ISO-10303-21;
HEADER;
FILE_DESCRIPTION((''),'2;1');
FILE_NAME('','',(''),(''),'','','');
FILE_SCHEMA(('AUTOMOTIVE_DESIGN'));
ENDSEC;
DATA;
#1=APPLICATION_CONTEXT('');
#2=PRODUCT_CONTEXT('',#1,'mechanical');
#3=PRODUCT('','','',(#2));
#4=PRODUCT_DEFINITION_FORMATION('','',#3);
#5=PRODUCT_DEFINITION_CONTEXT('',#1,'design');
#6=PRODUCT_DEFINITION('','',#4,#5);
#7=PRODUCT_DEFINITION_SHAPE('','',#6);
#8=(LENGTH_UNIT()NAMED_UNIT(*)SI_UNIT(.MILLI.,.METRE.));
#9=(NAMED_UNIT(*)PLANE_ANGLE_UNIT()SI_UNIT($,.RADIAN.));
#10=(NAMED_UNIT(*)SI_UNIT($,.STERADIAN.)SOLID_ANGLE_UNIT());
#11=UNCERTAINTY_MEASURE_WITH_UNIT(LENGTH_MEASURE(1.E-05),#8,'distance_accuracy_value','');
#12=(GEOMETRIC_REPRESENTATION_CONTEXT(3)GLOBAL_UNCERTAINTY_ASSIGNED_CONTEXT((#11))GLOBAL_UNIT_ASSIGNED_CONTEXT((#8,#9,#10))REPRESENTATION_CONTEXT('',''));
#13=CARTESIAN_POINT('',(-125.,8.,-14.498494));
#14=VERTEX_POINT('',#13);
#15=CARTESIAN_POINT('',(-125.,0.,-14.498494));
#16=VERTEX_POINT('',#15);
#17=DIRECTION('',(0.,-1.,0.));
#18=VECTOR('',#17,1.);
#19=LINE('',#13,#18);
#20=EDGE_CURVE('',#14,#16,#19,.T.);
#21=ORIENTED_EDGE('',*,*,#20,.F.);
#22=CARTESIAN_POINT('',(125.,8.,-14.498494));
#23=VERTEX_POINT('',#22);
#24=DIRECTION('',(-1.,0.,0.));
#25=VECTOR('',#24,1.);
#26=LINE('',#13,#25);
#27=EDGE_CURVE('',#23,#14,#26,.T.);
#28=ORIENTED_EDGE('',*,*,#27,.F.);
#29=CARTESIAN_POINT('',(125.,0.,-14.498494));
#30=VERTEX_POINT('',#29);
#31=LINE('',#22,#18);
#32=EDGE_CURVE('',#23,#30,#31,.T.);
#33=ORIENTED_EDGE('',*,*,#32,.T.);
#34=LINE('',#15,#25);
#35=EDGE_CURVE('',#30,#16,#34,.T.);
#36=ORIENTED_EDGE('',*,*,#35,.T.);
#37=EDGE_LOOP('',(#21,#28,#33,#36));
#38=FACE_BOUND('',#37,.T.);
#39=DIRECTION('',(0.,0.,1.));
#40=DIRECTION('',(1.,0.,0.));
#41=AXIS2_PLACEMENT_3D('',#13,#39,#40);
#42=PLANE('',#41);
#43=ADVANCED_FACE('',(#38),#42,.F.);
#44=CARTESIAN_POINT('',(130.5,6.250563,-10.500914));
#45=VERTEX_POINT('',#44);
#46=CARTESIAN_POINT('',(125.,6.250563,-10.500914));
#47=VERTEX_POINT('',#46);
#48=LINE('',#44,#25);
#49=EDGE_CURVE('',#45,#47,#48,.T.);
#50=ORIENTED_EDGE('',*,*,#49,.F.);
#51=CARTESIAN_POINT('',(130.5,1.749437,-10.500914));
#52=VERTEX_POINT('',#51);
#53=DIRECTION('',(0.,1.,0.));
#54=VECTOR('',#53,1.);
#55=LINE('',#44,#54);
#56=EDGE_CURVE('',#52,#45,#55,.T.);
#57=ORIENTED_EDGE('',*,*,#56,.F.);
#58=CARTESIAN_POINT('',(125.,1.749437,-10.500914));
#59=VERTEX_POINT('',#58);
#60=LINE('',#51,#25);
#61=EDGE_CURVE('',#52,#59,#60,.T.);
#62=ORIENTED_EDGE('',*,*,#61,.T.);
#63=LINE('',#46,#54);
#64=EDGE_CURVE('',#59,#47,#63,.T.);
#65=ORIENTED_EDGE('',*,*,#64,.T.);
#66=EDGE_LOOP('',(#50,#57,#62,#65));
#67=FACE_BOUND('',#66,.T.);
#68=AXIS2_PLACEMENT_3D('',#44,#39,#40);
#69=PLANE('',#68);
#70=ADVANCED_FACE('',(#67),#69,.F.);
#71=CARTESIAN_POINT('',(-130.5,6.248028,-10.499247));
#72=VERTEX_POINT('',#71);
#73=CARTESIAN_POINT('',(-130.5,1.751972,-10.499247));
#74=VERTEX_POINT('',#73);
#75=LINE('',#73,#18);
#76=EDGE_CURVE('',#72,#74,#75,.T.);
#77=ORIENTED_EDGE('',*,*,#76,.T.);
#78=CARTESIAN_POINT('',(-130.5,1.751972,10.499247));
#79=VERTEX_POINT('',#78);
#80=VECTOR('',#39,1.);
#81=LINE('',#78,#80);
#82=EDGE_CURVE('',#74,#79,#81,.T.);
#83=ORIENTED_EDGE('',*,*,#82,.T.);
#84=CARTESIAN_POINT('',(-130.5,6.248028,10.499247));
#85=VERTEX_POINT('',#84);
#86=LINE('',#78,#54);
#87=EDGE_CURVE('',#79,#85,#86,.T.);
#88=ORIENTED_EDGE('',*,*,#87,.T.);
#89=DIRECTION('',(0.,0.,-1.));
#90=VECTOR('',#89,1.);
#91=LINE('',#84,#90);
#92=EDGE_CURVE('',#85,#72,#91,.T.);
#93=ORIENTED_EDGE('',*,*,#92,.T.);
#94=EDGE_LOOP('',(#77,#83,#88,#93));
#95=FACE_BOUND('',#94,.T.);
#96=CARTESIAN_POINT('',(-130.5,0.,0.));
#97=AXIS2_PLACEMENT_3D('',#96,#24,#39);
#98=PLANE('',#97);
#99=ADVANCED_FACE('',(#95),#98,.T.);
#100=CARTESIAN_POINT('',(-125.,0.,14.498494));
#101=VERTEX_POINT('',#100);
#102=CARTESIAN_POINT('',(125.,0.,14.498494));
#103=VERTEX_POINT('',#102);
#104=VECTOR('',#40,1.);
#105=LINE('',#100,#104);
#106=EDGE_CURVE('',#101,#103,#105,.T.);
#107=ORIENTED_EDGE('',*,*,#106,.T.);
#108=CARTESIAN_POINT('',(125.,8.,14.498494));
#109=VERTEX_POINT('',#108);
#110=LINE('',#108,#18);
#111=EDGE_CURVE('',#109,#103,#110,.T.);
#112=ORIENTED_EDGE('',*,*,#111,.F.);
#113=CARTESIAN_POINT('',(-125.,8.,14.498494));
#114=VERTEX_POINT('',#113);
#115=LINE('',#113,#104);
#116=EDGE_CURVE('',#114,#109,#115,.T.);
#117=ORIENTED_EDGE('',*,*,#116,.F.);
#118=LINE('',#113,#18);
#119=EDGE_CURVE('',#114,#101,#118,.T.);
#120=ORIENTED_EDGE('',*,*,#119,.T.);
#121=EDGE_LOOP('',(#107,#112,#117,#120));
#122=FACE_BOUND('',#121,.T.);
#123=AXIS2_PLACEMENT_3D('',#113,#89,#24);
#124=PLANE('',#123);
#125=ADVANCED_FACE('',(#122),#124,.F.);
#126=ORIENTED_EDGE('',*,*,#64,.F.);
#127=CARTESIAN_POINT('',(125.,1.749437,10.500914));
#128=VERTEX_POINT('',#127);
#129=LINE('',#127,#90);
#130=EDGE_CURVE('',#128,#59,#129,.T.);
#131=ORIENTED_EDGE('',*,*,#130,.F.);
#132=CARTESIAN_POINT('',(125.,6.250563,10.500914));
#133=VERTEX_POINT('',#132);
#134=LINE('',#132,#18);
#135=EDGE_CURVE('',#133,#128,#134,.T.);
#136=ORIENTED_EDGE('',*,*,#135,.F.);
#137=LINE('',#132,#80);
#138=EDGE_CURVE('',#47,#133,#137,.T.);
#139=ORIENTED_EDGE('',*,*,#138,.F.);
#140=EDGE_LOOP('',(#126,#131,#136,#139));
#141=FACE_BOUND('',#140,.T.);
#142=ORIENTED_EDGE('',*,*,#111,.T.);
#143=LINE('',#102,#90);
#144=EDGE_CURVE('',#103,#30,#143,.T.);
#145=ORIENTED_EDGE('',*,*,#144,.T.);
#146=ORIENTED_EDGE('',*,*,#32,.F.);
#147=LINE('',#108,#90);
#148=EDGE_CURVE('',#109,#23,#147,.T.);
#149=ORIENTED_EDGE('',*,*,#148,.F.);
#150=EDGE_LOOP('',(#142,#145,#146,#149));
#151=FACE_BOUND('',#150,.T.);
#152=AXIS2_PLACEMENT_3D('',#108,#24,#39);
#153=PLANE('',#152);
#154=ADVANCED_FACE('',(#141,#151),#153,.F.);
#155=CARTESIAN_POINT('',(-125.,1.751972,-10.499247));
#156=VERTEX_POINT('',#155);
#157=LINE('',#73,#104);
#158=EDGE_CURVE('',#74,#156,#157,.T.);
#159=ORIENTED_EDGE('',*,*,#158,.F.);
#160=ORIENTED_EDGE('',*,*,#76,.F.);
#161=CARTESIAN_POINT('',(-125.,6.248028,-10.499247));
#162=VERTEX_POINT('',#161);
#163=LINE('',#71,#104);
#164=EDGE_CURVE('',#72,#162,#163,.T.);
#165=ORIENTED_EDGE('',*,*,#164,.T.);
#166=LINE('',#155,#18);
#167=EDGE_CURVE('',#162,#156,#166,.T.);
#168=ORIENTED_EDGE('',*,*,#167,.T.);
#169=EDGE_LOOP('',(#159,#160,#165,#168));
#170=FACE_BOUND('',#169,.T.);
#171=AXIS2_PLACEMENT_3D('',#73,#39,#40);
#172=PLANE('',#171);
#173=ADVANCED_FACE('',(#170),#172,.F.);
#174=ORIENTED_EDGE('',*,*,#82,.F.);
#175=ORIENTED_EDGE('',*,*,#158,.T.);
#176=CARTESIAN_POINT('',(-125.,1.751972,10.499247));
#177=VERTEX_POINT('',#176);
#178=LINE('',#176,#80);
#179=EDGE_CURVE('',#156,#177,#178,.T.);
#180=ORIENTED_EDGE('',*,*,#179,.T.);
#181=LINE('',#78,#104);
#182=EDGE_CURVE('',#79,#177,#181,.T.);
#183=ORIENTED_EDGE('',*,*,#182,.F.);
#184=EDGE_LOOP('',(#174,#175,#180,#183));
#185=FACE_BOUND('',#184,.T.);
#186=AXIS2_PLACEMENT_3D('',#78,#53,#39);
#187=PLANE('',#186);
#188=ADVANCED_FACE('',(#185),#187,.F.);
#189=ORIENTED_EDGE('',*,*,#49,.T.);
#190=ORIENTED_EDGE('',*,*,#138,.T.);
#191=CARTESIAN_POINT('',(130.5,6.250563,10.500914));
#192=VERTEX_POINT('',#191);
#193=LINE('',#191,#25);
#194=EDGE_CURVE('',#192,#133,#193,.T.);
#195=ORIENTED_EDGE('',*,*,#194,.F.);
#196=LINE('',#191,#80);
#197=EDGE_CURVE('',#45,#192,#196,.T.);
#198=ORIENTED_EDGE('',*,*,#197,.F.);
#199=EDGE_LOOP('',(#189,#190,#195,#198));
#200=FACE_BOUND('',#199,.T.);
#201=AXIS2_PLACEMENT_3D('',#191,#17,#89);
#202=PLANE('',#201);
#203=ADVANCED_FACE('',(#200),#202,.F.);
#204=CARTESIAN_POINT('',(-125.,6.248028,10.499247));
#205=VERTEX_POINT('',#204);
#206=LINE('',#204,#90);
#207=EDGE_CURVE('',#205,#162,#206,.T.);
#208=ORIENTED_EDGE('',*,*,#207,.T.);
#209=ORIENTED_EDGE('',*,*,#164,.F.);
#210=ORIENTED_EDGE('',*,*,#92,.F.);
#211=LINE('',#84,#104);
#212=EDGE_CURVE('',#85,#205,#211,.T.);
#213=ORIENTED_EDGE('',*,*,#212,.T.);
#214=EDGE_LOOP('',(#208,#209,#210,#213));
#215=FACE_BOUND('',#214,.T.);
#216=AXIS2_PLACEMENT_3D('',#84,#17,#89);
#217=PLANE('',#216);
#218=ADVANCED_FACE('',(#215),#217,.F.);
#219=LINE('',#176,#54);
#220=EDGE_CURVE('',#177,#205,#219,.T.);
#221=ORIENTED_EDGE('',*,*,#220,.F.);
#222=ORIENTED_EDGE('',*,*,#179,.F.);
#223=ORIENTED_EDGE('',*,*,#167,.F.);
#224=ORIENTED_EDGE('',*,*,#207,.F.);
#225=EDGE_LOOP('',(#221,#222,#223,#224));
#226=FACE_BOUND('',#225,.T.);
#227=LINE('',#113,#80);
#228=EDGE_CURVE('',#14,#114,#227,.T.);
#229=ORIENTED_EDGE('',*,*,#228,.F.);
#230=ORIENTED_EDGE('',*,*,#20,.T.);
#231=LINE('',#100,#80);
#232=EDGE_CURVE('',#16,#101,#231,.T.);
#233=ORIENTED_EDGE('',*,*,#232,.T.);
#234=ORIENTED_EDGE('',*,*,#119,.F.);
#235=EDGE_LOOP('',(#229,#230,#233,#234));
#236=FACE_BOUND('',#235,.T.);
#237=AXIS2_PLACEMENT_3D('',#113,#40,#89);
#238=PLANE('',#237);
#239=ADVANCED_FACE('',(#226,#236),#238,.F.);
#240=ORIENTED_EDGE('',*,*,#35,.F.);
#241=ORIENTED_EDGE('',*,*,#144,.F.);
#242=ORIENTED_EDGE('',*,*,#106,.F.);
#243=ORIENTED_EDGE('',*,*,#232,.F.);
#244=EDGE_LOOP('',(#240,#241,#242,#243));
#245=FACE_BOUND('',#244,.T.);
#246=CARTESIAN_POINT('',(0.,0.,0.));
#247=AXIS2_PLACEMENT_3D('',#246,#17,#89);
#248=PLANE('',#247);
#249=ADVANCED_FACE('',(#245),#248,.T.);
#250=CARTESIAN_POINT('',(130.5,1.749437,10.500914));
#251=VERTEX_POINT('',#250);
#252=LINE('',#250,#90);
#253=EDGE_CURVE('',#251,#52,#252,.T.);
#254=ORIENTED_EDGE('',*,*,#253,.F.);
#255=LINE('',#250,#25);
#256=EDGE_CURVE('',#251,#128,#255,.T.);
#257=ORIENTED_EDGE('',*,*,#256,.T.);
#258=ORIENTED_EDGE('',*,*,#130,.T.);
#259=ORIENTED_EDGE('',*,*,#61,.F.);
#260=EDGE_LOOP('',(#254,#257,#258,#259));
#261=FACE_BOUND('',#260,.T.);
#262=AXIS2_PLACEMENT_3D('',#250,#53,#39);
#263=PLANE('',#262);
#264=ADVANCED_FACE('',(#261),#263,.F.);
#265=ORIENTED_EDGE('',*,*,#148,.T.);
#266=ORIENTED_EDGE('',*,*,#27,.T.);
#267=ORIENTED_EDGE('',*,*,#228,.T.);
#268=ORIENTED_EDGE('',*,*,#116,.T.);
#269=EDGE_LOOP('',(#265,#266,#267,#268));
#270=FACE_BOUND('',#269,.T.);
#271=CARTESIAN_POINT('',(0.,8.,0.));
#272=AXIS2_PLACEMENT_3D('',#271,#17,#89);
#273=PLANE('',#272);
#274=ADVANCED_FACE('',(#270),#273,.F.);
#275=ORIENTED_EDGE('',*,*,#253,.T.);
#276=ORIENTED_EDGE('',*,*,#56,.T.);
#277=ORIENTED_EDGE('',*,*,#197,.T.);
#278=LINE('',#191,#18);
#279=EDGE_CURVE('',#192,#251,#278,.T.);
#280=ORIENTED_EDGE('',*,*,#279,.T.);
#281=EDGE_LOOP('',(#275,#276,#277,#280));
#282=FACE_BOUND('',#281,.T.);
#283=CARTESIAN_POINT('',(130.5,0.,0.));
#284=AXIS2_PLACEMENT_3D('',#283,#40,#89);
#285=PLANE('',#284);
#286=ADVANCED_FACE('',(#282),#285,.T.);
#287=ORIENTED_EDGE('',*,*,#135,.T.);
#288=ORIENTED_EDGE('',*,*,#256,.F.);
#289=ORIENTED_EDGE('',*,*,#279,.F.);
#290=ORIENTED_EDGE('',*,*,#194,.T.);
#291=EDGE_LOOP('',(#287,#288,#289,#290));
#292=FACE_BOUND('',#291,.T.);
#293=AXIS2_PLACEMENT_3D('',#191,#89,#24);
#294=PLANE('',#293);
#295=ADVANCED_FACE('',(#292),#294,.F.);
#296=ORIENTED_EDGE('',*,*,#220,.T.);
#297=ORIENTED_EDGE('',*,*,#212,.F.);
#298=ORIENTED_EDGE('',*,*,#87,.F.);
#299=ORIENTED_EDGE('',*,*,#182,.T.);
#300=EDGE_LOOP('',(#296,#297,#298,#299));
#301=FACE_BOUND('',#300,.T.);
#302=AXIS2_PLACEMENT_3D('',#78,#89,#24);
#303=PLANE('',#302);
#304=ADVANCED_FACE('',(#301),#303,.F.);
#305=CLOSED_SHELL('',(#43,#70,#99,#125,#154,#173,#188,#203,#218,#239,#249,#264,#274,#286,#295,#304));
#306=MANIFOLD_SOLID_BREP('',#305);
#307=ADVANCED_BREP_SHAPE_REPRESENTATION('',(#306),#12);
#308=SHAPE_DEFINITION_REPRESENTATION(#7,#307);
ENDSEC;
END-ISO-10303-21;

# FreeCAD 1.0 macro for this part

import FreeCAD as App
import Part
import Sketcher


def add_polygon(sketch, points):
    """Adds a closed chain of lines whose ends are joined by coincident constraints."""
    first, n = sketch.GeometryCount, len(points)
    for a, b in zip(points, points[1:] + points[:1]):
        sketch.addGeometry(Part.LineSegment(App.Vector(*a, 0), App.Vector(*b, 0)), False)
    for i in range(n):
        sketch.addConstraint(Sketcher.Constraint("Coincident", first + i, 2, first + (i + 1) % n, 1))

doc = App.newDocument("Part")
body = doc.addObject("PartDesign::Body", "Body")

sketch1 = doc.addObject("Sketcher::SketchObject", "Sketch")
body.addObject(sketch1)
sketch1.AttachmentSupport = (doc.XZ_Plane, [""])
sketch1.MapMode = "FlatFace"
add_polygon(sketch1, [(-125, -14), (-125, 14), (125, 14), (125, -14)])
sketch1.addConstraint([
    Sketcher.Constraint("Vertical", 0),
    Sketcher.Constraint("Horizontal", 1),
    Sketcher.Constraint("Vertical", 2),
    Sketcher.Constraint("Horizontal", 3),
    Sketcher.Constraint("Symmetric", 0, 2, 2, 2, -1, 1),
    Sketcher.Constraint("DistanceX", 1, 1, 1, 2, 250.0),
    Sketcher.Constraint("DistanceY", 0, 1, 0, 2, 28.996989),
])
pad1 = doc.addObject("PartDesign::Pad", "Pad")
body.addObject(pad1)
pad1.Profile = sketch1
pad1.Length = 8
pad1.Reversed = True

sketch2 = doc.addObject("Sketcher::SketchObject", "Sketch001")
body.addObject(sketch2)
sketch2.AttachmentSupport = (doc.YZ_Plane, [""])
sketch2.MapMode = "FlatFace"
sketch2.AttachmentOffset = App.Placement(App.Vector(0, 0, 125), App.Rotation())
add_polygon(sketch2, [(6.3, 10.5), (1.7, 10.5), (1.7, -10.5), (6.3, -10.5)])
sketch2.addConstraint([
    Sketcher.Constraint("Horizontal", 0),
    Sketcher.Constraint("Vertical", 1),
    Sketcher.Constraint("Horizontal", 2),
    Sketcher.Constraint("Vertical", 3),
    Sketcher.Constraint("DistanceY", 1, 2, 1, 1, 21.001828),
    Sketcher.Constraint("DistanceX", 0, 2, 0, 1, 4.501125),
    Sketcher.Constraint("DistanceX", -1, 1, 0, 2, 1.749437),
    Sketcher.Constraint("DistanceY", -1, 1, 0, 2, 10.500914),
])
pad2 = doc.addObject("PartDesign::Pad", "Pad001")
body.addObject(pad2)
pad2.Profile = sketch2
pad2.Length = 5.5

sketch3 = doc.addObject("Sketcher::SketchObject", "Sketch002")
body.addObject(sketch3)
sketch3.AttachmentSupport = (doc.YZ_Plane, [""])
sketch3.MapMode = "FlatFace"
sketch3.AttachmentOffset = App.Placement(App.Vector(0, 0, -125), App.Rotation())
add_polygon(sketch3, [(6.2, -10.5), (1.8, -10.5), (1.8, 10.5), (6.2, 10.5)])
sketch3.addConstraint([
    Sketcher.Constraint("Horizontal", 0),
    Sketcher.Constraint("Vertical", 1),
    Sketcher.Constraint("Horizontal", 2),
    Sketcher.Constraint("Vertical", 3),
    Sketcher.Constraint("DistanceX", 0, 2, 0, 1, 4.496056),
    Sketcher.Constraint("DistanceY", 1, 1, 1, 2, 20.998493),
    Sketcher.Constraint("DistanceX", -1, 1, 0, 2, 1.751972),
    Sketcher.Constraint("DistanceY", 0, 2, -1, 1, 10.499247),
])
pad3 = doc.addObject("PartDesign::Pad", "Pad002")
body.addObject(pad3)
pad3.Profile = sketch3
pad3.Length = 5.5
pad3.Reversed = True

doc.recompute()
